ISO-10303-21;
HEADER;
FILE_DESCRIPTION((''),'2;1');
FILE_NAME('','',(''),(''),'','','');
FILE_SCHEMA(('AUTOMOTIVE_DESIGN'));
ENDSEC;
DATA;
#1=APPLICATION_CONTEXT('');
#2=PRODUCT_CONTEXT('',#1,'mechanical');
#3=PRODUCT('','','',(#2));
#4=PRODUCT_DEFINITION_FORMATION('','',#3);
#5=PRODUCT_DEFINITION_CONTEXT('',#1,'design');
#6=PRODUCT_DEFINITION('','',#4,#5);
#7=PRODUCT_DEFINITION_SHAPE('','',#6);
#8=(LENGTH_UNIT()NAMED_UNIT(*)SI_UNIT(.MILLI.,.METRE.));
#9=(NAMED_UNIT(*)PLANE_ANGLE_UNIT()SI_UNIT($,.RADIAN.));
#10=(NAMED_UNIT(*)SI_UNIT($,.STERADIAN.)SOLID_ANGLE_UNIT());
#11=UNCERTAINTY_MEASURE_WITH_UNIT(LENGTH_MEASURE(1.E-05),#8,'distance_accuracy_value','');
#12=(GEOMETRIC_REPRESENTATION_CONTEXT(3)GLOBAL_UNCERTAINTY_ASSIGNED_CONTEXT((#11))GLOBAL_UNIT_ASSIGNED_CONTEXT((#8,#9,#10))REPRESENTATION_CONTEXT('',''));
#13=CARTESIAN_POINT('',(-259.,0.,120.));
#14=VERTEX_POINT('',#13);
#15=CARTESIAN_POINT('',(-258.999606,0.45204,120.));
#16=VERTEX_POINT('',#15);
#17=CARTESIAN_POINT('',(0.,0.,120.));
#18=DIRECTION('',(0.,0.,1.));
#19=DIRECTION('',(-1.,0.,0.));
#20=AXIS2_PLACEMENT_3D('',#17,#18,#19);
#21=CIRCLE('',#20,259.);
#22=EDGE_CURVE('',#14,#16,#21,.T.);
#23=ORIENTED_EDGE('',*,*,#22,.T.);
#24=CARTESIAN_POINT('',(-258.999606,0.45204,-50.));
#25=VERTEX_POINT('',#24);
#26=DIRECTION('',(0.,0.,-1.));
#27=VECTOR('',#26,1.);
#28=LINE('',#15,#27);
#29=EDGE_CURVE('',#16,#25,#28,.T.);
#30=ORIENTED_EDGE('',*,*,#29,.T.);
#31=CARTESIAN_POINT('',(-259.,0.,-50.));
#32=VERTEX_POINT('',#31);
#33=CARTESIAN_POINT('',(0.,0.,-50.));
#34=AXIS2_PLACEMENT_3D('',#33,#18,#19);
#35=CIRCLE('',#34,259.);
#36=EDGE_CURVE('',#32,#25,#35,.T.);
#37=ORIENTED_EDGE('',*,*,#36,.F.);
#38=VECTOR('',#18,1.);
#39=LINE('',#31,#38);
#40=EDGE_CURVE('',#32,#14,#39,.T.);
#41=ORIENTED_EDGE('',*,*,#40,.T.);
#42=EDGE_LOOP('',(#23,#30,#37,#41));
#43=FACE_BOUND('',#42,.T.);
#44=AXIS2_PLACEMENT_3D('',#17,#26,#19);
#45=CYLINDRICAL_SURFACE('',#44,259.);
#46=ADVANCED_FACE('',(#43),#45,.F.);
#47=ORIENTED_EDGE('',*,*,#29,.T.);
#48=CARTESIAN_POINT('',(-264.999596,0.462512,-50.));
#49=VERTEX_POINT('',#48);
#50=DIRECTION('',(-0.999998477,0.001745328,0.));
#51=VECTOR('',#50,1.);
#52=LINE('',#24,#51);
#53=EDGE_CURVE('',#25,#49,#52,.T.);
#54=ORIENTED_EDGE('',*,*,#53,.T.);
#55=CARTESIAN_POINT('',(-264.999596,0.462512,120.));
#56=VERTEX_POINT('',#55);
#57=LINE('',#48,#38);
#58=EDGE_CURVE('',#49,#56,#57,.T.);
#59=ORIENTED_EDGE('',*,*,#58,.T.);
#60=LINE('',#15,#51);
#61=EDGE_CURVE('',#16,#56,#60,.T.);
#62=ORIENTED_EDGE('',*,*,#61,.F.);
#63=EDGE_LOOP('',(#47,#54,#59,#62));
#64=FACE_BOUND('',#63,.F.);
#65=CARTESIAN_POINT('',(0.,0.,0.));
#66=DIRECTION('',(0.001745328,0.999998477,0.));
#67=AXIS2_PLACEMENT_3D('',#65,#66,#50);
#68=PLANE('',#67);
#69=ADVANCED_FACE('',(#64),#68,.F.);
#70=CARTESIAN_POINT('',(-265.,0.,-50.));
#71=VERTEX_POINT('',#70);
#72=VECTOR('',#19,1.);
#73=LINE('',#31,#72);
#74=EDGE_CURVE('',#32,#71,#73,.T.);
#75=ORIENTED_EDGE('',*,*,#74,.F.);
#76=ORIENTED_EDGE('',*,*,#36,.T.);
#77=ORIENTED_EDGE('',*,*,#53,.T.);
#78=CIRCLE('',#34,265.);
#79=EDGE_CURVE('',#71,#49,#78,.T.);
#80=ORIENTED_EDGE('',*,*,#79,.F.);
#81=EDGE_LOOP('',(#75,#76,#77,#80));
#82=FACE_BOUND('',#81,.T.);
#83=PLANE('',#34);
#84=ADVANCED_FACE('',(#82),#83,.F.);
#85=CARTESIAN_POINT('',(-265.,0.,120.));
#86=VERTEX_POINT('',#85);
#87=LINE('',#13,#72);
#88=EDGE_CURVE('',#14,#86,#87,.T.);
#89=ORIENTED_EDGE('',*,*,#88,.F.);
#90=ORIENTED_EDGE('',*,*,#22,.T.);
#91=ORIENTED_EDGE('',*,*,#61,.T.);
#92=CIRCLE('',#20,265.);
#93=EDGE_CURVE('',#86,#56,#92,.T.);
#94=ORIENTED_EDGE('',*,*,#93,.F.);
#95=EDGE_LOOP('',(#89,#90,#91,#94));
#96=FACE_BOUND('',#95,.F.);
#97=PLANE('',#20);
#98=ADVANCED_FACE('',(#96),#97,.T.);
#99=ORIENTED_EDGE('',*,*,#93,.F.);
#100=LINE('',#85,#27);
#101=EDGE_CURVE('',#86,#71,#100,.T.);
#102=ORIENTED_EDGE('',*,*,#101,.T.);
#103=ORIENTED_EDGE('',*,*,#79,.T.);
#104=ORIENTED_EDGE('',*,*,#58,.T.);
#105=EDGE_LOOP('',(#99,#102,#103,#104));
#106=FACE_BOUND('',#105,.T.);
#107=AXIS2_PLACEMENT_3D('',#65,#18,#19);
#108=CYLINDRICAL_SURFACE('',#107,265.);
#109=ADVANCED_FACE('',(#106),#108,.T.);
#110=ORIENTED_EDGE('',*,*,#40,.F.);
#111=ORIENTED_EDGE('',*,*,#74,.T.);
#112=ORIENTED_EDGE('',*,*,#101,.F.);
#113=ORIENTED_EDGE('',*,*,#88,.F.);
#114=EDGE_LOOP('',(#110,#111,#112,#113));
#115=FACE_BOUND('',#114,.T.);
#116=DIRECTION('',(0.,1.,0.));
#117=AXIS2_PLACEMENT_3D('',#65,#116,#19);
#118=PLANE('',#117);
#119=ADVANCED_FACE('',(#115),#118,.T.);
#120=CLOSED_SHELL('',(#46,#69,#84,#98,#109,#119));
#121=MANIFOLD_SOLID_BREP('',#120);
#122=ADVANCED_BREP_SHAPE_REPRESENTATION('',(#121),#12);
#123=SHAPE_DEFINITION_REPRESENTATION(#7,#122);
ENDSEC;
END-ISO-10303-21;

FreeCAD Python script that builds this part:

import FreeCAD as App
import Part
import Sketcher

V = App.Vector

doc = App.newDocument("Part")
body = doc.addObject("PartDesign::Body", "Body")

# Sketch on XZ plane
sketch1 = body.newObject("Sketcher::SketchObject", "Sketch")
sketch1.AttachmentSupport = (doc.getObject("XZ_Plane"), [""])
sketch1.MapMode = "FlatFace"
sketch1.addGeometry([
    Part.LineSegment(V(-265, 120, 0), V(-259, 120, 0)),
    Part.LineSegment(V(-259, 120, 0), V(-259, -50, 0)),
    Part.LineSegment(V(-259, -50, 0), V(-265, -50, 0)),
    Part.LineSegment(V(-265, -50, 0), V(-265, 120, 0)),
], False)
sketch1.addConstraint([
    Sketcher.Constraint("Coincident", 0, 2, 1, 1),
    Sketcher.Constraint("Coincident", 1, 2, 2, 1),
    Sketcher.Constraint("Coincident", 2, 2, 3, 1),
    Sketcher.Constraint("Coincident", 3, 2, 0, 1),
    Sketcher.Constraint("Horizontal", 0),
    Sketcher.Constraint("Vertical", 1),
    Sketcher.Constraint("Horizontal", 2),
    Sketcher.Constraint("Vertical", 3),
    Sketcher.Constraint("DistanceX", 0, 1, 0, 2, 6.0),
    Sketcher.Constraint("DistanceY", -1, 1, 0, 2, 120.0),
    Sketcher.Constraint("DistanceY", 1, 2, -1, 1, 50.0),
    Sketcher.Constraint("DistanceX", 0, 2, -1, 1, 259.0),
])
revolution = body.newObject("PartDesign::Revolution", "Revolution")
revolution.Profile = sketch1
revolution.ReferenceAxis = (sketch1, ["V_Axis"])
revolution.Angle = 359.9

doc.recompute()
